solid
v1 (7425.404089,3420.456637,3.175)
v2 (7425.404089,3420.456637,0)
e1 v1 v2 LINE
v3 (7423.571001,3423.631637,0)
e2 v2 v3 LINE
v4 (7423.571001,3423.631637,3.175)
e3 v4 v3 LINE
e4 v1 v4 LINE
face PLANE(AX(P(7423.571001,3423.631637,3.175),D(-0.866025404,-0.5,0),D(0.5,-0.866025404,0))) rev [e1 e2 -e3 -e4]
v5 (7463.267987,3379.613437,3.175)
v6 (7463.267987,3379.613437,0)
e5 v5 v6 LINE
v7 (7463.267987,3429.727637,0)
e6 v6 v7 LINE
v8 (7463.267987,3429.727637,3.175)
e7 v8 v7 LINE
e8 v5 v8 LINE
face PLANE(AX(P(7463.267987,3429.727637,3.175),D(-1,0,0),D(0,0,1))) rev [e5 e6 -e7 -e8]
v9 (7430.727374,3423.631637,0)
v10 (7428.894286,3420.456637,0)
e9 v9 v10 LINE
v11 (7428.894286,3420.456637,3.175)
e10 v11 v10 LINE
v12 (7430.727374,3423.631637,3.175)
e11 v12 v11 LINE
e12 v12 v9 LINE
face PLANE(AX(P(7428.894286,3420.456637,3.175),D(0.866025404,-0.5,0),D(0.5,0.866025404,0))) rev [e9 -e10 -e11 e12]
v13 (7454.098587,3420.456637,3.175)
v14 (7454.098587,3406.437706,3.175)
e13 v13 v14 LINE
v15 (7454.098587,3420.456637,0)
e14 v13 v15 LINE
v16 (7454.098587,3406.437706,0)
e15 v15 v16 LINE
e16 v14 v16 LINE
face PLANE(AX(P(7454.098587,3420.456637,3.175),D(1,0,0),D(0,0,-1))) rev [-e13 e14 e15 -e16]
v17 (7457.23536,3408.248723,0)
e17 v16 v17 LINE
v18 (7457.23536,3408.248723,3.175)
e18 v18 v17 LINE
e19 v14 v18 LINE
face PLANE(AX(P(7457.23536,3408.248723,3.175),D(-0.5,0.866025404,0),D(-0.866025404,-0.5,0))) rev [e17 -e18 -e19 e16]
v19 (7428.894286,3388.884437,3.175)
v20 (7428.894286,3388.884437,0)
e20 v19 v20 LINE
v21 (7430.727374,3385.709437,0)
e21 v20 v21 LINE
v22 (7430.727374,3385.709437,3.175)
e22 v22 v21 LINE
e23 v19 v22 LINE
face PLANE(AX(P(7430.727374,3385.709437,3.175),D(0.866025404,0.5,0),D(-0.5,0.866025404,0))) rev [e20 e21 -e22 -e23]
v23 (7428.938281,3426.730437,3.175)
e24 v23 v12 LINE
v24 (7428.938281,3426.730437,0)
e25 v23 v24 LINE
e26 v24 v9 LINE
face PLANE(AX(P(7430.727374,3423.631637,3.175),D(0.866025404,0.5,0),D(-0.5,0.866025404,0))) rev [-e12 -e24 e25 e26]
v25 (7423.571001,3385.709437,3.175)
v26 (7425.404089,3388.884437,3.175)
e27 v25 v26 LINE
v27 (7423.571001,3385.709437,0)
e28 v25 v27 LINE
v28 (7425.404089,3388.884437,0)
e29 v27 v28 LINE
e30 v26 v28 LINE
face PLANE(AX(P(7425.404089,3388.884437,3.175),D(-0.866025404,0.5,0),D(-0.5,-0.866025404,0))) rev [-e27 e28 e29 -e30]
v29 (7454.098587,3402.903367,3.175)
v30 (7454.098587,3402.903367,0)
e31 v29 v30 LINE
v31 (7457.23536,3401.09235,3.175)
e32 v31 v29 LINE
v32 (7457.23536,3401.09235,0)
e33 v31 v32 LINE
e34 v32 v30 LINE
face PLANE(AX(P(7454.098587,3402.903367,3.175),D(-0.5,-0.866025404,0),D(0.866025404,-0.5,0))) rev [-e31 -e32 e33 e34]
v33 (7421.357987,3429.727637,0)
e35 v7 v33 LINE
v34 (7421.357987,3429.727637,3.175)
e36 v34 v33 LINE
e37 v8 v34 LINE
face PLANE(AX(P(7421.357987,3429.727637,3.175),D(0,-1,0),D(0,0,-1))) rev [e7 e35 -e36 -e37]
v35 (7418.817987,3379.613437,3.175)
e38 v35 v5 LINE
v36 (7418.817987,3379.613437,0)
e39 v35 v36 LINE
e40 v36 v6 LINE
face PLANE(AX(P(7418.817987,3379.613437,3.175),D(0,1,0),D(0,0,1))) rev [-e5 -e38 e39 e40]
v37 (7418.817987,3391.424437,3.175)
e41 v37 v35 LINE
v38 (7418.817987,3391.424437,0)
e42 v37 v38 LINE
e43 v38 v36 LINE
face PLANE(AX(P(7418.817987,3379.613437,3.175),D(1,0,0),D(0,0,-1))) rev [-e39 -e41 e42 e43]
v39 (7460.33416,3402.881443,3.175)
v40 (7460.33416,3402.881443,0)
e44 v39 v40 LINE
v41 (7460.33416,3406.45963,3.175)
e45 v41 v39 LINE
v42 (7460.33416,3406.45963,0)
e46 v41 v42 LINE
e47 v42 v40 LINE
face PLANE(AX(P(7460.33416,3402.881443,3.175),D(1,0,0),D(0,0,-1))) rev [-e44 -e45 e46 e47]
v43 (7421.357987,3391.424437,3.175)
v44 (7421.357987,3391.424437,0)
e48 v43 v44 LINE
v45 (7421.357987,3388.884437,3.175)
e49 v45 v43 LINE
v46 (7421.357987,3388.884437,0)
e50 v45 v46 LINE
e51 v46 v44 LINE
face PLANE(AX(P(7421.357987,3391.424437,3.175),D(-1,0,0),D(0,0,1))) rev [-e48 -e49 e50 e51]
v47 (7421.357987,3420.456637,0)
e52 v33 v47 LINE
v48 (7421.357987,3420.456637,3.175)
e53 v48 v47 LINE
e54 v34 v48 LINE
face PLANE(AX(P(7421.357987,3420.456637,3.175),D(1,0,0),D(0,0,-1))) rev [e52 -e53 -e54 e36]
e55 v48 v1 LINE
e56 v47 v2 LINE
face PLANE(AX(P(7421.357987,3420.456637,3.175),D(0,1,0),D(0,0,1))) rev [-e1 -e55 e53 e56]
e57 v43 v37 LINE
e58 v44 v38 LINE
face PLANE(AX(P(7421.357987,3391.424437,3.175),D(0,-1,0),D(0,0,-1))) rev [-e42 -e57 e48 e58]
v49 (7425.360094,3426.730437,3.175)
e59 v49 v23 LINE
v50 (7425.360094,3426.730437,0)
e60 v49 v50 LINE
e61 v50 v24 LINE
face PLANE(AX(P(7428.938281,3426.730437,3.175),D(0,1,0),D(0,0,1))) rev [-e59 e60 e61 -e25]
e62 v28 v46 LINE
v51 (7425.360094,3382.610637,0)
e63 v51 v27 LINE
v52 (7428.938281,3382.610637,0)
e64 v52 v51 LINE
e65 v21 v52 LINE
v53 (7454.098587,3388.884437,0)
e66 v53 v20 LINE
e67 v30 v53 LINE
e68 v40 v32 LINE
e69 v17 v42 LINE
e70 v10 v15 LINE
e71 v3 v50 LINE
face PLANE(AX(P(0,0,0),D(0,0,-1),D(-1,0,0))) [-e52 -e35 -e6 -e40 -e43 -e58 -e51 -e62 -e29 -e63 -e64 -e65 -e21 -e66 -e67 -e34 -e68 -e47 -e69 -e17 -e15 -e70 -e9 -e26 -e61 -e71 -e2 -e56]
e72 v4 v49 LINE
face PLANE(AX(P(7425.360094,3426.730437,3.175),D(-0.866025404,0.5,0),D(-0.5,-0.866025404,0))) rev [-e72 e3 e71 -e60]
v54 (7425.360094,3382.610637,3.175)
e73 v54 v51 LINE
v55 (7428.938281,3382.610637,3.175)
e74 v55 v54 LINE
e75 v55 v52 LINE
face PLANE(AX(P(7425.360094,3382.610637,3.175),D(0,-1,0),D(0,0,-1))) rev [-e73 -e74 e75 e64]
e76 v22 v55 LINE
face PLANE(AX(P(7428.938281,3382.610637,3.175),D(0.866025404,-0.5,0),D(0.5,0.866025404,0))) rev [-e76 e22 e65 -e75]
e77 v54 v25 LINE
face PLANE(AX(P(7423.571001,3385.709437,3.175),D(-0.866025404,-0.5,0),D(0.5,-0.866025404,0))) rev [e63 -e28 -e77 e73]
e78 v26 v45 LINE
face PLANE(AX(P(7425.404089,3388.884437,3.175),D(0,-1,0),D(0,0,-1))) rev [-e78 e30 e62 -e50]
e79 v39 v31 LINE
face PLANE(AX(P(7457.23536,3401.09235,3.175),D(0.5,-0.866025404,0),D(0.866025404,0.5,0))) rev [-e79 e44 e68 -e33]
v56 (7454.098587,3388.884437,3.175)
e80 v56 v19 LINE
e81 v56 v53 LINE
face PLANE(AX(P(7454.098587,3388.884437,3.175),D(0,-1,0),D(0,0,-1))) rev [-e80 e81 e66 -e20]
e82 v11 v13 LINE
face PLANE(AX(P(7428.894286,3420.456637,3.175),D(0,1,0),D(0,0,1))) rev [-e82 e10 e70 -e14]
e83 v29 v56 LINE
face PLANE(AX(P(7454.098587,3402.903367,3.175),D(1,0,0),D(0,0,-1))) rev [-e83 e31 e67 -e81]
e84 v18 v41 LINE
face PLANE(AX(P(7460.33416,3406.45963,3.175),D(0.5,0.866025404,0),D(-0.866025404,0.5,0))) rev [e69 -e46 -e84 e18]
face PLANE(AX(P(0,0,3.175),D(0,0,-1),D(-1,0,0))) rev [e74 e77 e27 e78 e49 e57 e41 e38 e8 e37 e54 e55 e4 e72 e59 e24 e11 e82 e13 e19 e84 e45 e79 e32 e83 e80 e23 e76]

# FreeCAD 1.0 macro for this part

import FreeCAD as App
import Part
import Sketcher
Q = App.Units.Quantity


def add_polygon(sketch, points):
    """Adds a closed chain of lines whose ends are joined by coincident constraints."""
    first, n = sketch.GeometryCount, len(points)
    for a, b in zip(points, points[1:] + points[:1]):
        sketch.addGeometry(Part.LineSegment(App.Vector(*a, 0), App.Vector(*b, 0)), False)
    for i in range(n):
        sketch.addConstraint(Sketcher.Constraint("Coincident", first + i, 2, first + (i + 1) % n, 1))

doc = App.newDocument("Part")
body = doc.addObject("PartDesign::Body", "Body")

sketch1 = doc.addObject("Sketcher::SketchObject", "Sketch")
body.addObject(sketch1)
sketch1.AttachmentSupport = (doc.XY_Plane, [""])
sketch1.MapMode = "FlatFace"
add_polygon(sketch1, [(7421.4, 3429.7), (7421.4, 3420.5), (7425.4, 3420.5), (7423.6, 3423.6), (7425.4, 3426.7), (7428.9, 3426.7), (7430.7, 3423.6), (7428.9, 3420.5), (7454.1, 3420.5), (7454.1, 3406.4), (7457.2, 3408.2), (7460.3, 3406.5), (7460.3, 3402.9), (7457.2, 3401.1), (7454.1, 3402.9), (7454.1, 3388.9), (7428.9, 3388.9), (7430.7, 3385.7), (7428.9, 3382.6), (7425.4, 3382.6), (7423.6, 3385.7), (7425.4, 3388.9), (7421.4, 3388.9), (7421.4, 3391.4), (7418.8, 3391.4), (7418.8, 3379.6), (7463.3, 3379.6), (7463.3, 3429.7)])
sketch1.addConstraint(Sketcher.Constraint("Vertical", 0))
sketch1.addConstraint(Sketcher.Constraint("Horizontal", 1))
sketch1.addConstraint(Sketcher.Constraint("Horizontal", 4))
sketch1.addConstraint(Sketcher.Constraint("Horizontal", 7))
sketch1.addConstraint(Sketcher.Constraint("Vertical", 8))
sketch1.addConstraint(Sketcher.Constraint("Vertical", 11))
sketch1.addConstraint(Sketcher.Constraint("Vertical", 14))
sketch1.addConstraint(Sketcher.Constraint("Horizontal", 15))
sketch1.addConstraint(Sketcher.Constraint("Horizontal", 18))
sketch1.addConstraint(Sketcher.Constraint("Horizontal", 21))
sketch1.addConstraint(Sketcher.Constraint("Vertical", 22))
sketch1.addConstraint(Sketcher.Constraint("Horizontal", 23))
sketch1.addConstraint(Sketcher.Constraint("Vertical", 24))
sketch1.addConstraint(Sketcher.Constraint("Horizontal", 25))
sketch1.addConstraint(Sketcher.Constraint("Vertical", 26))
sketch1.addConstraint(Sketcher.Constraint("Horizontal", 27))
sketch1.addConstraint(Sketcher.Constraint("Parallel", 2, 5))
sketch1.addConstraint(Sketcher.Constraint("Parallel", 3, 6))
sketch1.addConstraint(Sketcher.Constraint("Perpendicular", 5, 9))
sketch1.addConstraint(Sketcher.Constraint("Perpendicular", 6, 10))
sketch1.addConstraint(Sketcher.Constraint("Parallel", 9, 12))
sketch1.addConstraint(Sketcher.Constraint("Parallel", 10, 13))
sketch1.addConstraint(Sketcher.Constraint("Perpendicular", 12, 16))
sketch1.addConstraint(Sketcher.Constraint("Perpendicular", 13, 17))
sketch1.addConstraint(Sketcher.Constraint("Parallel", 16, 19))
sketch1.addConstraint(Sketcher.Constraint("Parallel", 17, 20))
sketch1.addConstraint(Sketcher.Constraint("Horizontal", 2, 2, 5, 2))
sketch1.addConstraint(Sketcher.Constraint("Horizontal", 1, 2, 6, 2))
sketch1.addConstraint(Sketcher.Constraint("Horizontal", 16, 2, 19, 2))
sketch1.addConstraint(Sketcher.Constraint("Horizontal", 15, 2, 20, 2))
sketch1.addConstraint(Sketcher.Constraint("Vertical", 9, 2, 12, 2))
sketch1.addConstraint(Sketcher.Constraint("Vertical", 8, 2, 13, 2))
sketch1.addConstraint(Sketcher.Constraint("Vertical", 6, 2, 15, 2))
sketch1.addConstraint(Sketcher.Constraint("Vertical", 5, 2, 16, 2))
sketch1.addConstraint(Sketcher.Constraint("Vertical", 4, 2, 17, 2))
sketch1.addConstraint(Sketcher.Constraint("Vertical", 3, 2, 18, 2))
sketch1.addConstraint(Sketcher.Constraint("Vertical", 2, 2, 19, 2))
sketch1.addConstraint(Sketcher.Constraint("Vertical", 0, 2, 21, 2))
sketch1.addConstraint(Sketcher.Constraint("Equal", 18, 11))
sketch1.addConstraint(Sketcher.Constraint("Equal", 8, 14))
sketch1.addConstraint(Sketcher.Constraint("Equal", 23, 22))
sketch1.addConstraint(Sketcher.Constraint("Equal", 5, 10))
sketch1.addConstraint(Sketcher.Constraint("DistanceX", 23, 2, 23, 1, Q("0.1 in")))
sketch1.addConstraint(Sketcher.Constraint("Angle", 2, Q("120 deg")))
sketch1.addConstraint(Sketcher.Constraint("DistanceX", 25, 1, 25, 2, Q("1.75 in")))
sketch1.addConstraint(Sketcher.Constraint("DistanceY", 0, 2, 0, 1, Q("0.365 in")))
sketch1.addConstraint(Sketcher.Constraint("DistanceY", 24, 2, 24, 1, Q("0.465 in")))
sketch1.addConstraint(Sketcher.Constraint("DistanceY", 26, 1, 26, 2, Q("1.973 in")))
sketch1.addConstraint(Sketcher.Constraint("DistanceY", 24, 2, 19, 2, Q("0.24 in")))
sketch1.addConstraint(Sketcher.Constraint("DistanceY", 2, 2, 3, 2, Q("0.122 in")))
sketch1.addConstraint(Sketcher.Constraint("DistanceX", 14, 2, 25, 2, Q("0.361 in")))
sketch1.addConstraint(Sketcher.Constraint("DistanceX", 1, 1, 1, 2, Q("4.046101 mm")))
sketch1.addConstraint(Sketcher.Constraint("DistanceX", 7, 1, 7, 2, Q("25.204301 mm")))
sketch1.addConstraint(Sketcher.Constraint("DistanceY", 8, 2, 9, 2, Q("0.0712999 in")))
sketch1.addConstraint(Sketcher.Constraint("DistanceX", -1, 1, 2, 2, Q("7423.571001 mm")))
sketch1.addConstraint(Sketcher.Constraint("DistanceY", -1, 1, 10, 2, Q("3406.45963 mm")))
pad1 = doc.addObject("PartDesign::Pad", "Pad")
body.addObject(pad1)
pad1.Profile = sketch1
pad1.Length = Q("0.125 in")

doc.recompute()
